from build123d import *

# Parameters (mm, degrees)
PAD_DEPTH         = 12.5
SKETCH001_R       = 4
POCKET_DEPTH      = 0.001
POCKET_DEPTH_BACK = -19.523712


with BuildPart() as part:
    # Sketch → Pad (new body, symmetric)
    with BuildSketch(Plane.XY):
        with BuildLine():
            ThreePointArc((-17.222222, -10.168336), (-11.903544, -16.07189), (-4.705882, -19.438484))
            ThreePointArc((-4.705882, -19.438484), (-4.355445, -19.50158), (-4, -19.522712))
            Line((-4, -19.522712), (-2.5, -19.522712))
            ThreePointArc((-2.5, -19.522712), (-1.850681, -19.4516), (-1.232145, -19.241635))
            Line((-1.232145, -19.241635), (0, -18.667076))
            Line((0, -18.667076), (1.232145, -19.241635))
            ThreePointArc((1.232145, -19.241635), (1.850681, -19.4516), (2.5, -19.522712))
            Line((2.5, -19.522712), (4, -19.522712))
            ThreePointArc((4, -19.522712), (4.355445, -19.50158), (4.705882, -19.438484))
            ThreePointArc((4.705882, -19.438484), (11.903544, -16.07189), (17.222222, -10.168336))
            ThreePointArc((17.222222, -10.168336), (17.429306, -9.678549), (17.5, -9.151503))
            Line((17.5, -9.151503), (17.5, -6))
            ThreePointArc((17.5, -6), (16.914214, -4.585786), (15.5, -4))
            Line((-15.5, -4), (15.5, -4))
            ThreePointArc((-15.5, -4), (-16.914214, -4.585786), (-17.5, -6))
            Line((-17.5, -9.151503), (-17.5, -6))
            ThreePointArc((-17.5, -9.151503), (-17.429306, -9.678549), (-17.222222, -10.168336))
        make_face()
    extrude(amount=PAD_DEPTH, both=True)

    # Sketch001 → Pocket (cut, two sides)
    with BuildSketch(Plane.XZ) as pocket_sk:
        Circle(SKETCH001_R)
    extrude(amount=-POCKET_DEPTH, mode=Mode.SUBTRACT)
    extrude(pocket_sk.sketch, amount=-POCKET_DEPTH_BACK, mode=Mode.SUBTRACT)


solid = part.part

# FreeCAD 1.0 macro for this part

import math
import FreeCAD as App
import Part
import Sketcher
from FreeCAD import Vector
Q = App.Units.Quantity

doc = App.newDocument("Part")
body = doc.addObject("PartDesign::Body", "Body")

sketch1 = doc.addObject("Sketcher::SketchObject", "Sketch")
body.addObject(sketch1)
sketch1.AttachmentSupport = (doc.XY_Plane, [""])
sketch1.MapMode = "FlatFace"
sketch1.addGeometry([
    Part.ArcOfCircle(Part.Circle(Vector(0, 0, 0), Vector(0, 0, 1), 20), math.radians(-149), math.radians(-104)),
    Part.ArcOfCircle(Part.Circle(Vector(-4, -16.5, 0), Vector(0, 0, 1), 3), math.radians(-103.61), math.radians(-90)),
    Part.LineSegment(Vector(-4, -19.5, 0), Vector(-2.5, -19.5, 0)),
    Part.ArcOfCircle(Part.Circle(Vector(-2.5, -16.5, 0), Vector(0, 0, 1), 3), math.radians(-90), math.radians(-65)),
    Part.LineSegment(Vector(-1.2, -19.2, 0), Vector(0, -18.7, 0)),
    Part.LineSegment(Vector(0, -18.7, 0), Vector(1.2, -19.2, 0)),
    Part.ArcOfCircle(Part.Circle(Vector(2.5, -16.5, 0), Vector(0, 0, 1), 3), math.radians(-115), math.radians(-90)),
    Part.LineSegment(Vector(2.5, -19.5, 0), Vector(4, -19.5, 0)),
    Part.ArcOfCircle(Part.Circle(Vector(4, -16.5, 0), Vector(0, 0, 1), 3), math.radians(-90), math.radians(-76.39)),
    Part.ArcOfCircle(Part.Circle(Vector(0, 0, 0), Vector(0, 0, 1), 20), math.radians(-76), math.radians(-31)),
    Part.ArcOfCircle(Part.Circle(Vector(15.5, -9.2, 0), Vector(0, 0, 1), 2), math.radians(-31), math.radians(0)),
    Part.LineSegment(Vector(17.5, -9.2, 0), Vector(17.5, -6, 0)),
    Part.ArcOfCircle(Part.Circle(Vector(15.5, -6, 0), Vector(0, 0, 1), 2), math.radians(0), math.radians(90)),
    Part.LineSegment(Vector(15.5, -4, 0), Vector(-15.5, -4, 0)),
    Part.ArcOfCircle(Part.Circle(Vector(-15.5, -6, 0), Vector(0, 0, 1), 2), math.radians(90), math.radians(180)),
    Part.LineSegment(Vector(-17.5, -6, 0), Vector(-17.5, -9.2, 0)),
    Part.ArcOfCircle(Part.Circle(Vector(-15.5, -9.2, 0), Vector(0, 0, 1), 2), math.radians(-180), math.radians(-149)),
], False)
sketch1.addConstraint([
    Sketcher.Constraint("Tangent", 0, 2, 1, 1),
    Sketcher.Constraint("Coincident", 1, 2, 2, 1),
    Sketcher.Constraint("Tangent", 2, 2, 3, 1),
    Sketcher.Constraint("Tangent", 3, 2, 4, 1),
    Sketcher.Constraint("Coincident", 4, 2, 5, 1),
    Sketcher.Constraint("Tangent", 5, 2, 6, 1),
    Sketcher.Constraint("Tangent", 6, 2, 7, 1),
    Sketcher.Constraint("Coincident", 7, 2, 8, 1),
    Sketcher.Constraint("Tangent", 8, 2, 9, 1),
    Sketcher.Constraint("Tangent", 9, 2, 10, 1),
    Sketcher.Constraint("Tangent", 10, 2, 11, 1),
    Sketcher.Constraint("Tangent", 11, 2, 12, 1),
    Sketcher.Constraint("Tangent", 12, 2, 13, 1),
    Sketcher.Constraint("Tangent", 13, 2, 14, 1),
    Sketcher.Constraint("Tangent", 14, 2, 15, 1),
    Sketcher.Constraint("Tangent", 15, 2, 16, 1),
    Sketcher.Constraint("Tangent", 16, 2, 0, 1),
    Sketcher.Constraint("Horizontal", 2),
    Sketcher.Constraint("Horizontal", 7),
    Sketcher.Constraint("Vertical", 11),
    Sketcher.Constraint("Horizontal", 13),
    Sketcher.Constraint("Vertical", 15),
    Sketcher.Constraint("Coincident", 0, 3, -1, 1),
    Sketcher.Constraint("Coincident", 9, 3, -1, 1),
    Sketcher.Constraint("Equal", 3, 6),
    Sketcher.Constraint("Equal", 1, 8),
    Sketcher.Constraint("Equal", 0, 9),
    Sketcher.Constraint("Equal", 10, 12),
    Sketcher.Constraint("Equal", 12, 14),
    Sketcher.Constraint("Equal", 14, 16),
    Sketcher.Constraint("Symmetric", 3, 3, 6, 3, -2),
    Sketcher.Constraint("PointOnObject", 4, 2, -2),
    Sketcher.Constraint("Horizontal", 10, 3, 16, 3),
    Sketcher.Constraint("Equal", 2, 7),
    Sketcher.Constraint("Radius", 10, 1.999999),
    Sketcher.Constraint("DistanceX", 13, 2, 13, 1, 31.0),
    Sketcher.Constraint("Angle", 4, Q("25.000013 deg")),
    Sketcher.Constraint("DistanceX", 2, 1, 2, 2, 1.5),
    Sketcher.Constraint("DistanceY", 12, 3, -1, 1, 5.999999),
    Sketcher.Constraint("DistanceX", 1, 2, -1, 1, 4.0),
    Sketcher.Constraint("Radius", 1, 3.000051),
    Sketcher.Constraint("Radius", 0, 19.999993),
    Sketcher.Constraint("Radius", 3, 2.999994),
    Sketcher.Constraint("DistanceX", 1, 3, -1, 1, 3.999991),
])
pad1 = doc.addObject("PartDesign::Pad", "Pad")
body.addObject(pad1)
pad1.Profile = sketch1
pad1.Length = 25
pad1.Midplane = True

sketch2 = doc.addObject("Sketcher::SketchObject", "Sketch001")
body.addObject(sketch2)
sketch2.AttachmentSupport = (doc.XZ_Plane, [""])
sketch2.MapMode = "FlatFace"
sketch2.addGeometry(Part.Circle(Vector(0, 0, 0), Vector(0, 0, 1), 4), False)
sketch2.addConstraint([
    Sketcher.Constraint("Coincident", 0, 3, -1, 1),
    Sketcher.Constraint("Diameter", 0, 8.0),
])
pocket1 = doc.addObject("PartDesign::Pocket", "Pocket")
body.addObject(pocket1)
pocket1.Profile = sketch2
pocket1.Type = "ThroughAll"
pocket1.Midplane = True

doc.recompute()
